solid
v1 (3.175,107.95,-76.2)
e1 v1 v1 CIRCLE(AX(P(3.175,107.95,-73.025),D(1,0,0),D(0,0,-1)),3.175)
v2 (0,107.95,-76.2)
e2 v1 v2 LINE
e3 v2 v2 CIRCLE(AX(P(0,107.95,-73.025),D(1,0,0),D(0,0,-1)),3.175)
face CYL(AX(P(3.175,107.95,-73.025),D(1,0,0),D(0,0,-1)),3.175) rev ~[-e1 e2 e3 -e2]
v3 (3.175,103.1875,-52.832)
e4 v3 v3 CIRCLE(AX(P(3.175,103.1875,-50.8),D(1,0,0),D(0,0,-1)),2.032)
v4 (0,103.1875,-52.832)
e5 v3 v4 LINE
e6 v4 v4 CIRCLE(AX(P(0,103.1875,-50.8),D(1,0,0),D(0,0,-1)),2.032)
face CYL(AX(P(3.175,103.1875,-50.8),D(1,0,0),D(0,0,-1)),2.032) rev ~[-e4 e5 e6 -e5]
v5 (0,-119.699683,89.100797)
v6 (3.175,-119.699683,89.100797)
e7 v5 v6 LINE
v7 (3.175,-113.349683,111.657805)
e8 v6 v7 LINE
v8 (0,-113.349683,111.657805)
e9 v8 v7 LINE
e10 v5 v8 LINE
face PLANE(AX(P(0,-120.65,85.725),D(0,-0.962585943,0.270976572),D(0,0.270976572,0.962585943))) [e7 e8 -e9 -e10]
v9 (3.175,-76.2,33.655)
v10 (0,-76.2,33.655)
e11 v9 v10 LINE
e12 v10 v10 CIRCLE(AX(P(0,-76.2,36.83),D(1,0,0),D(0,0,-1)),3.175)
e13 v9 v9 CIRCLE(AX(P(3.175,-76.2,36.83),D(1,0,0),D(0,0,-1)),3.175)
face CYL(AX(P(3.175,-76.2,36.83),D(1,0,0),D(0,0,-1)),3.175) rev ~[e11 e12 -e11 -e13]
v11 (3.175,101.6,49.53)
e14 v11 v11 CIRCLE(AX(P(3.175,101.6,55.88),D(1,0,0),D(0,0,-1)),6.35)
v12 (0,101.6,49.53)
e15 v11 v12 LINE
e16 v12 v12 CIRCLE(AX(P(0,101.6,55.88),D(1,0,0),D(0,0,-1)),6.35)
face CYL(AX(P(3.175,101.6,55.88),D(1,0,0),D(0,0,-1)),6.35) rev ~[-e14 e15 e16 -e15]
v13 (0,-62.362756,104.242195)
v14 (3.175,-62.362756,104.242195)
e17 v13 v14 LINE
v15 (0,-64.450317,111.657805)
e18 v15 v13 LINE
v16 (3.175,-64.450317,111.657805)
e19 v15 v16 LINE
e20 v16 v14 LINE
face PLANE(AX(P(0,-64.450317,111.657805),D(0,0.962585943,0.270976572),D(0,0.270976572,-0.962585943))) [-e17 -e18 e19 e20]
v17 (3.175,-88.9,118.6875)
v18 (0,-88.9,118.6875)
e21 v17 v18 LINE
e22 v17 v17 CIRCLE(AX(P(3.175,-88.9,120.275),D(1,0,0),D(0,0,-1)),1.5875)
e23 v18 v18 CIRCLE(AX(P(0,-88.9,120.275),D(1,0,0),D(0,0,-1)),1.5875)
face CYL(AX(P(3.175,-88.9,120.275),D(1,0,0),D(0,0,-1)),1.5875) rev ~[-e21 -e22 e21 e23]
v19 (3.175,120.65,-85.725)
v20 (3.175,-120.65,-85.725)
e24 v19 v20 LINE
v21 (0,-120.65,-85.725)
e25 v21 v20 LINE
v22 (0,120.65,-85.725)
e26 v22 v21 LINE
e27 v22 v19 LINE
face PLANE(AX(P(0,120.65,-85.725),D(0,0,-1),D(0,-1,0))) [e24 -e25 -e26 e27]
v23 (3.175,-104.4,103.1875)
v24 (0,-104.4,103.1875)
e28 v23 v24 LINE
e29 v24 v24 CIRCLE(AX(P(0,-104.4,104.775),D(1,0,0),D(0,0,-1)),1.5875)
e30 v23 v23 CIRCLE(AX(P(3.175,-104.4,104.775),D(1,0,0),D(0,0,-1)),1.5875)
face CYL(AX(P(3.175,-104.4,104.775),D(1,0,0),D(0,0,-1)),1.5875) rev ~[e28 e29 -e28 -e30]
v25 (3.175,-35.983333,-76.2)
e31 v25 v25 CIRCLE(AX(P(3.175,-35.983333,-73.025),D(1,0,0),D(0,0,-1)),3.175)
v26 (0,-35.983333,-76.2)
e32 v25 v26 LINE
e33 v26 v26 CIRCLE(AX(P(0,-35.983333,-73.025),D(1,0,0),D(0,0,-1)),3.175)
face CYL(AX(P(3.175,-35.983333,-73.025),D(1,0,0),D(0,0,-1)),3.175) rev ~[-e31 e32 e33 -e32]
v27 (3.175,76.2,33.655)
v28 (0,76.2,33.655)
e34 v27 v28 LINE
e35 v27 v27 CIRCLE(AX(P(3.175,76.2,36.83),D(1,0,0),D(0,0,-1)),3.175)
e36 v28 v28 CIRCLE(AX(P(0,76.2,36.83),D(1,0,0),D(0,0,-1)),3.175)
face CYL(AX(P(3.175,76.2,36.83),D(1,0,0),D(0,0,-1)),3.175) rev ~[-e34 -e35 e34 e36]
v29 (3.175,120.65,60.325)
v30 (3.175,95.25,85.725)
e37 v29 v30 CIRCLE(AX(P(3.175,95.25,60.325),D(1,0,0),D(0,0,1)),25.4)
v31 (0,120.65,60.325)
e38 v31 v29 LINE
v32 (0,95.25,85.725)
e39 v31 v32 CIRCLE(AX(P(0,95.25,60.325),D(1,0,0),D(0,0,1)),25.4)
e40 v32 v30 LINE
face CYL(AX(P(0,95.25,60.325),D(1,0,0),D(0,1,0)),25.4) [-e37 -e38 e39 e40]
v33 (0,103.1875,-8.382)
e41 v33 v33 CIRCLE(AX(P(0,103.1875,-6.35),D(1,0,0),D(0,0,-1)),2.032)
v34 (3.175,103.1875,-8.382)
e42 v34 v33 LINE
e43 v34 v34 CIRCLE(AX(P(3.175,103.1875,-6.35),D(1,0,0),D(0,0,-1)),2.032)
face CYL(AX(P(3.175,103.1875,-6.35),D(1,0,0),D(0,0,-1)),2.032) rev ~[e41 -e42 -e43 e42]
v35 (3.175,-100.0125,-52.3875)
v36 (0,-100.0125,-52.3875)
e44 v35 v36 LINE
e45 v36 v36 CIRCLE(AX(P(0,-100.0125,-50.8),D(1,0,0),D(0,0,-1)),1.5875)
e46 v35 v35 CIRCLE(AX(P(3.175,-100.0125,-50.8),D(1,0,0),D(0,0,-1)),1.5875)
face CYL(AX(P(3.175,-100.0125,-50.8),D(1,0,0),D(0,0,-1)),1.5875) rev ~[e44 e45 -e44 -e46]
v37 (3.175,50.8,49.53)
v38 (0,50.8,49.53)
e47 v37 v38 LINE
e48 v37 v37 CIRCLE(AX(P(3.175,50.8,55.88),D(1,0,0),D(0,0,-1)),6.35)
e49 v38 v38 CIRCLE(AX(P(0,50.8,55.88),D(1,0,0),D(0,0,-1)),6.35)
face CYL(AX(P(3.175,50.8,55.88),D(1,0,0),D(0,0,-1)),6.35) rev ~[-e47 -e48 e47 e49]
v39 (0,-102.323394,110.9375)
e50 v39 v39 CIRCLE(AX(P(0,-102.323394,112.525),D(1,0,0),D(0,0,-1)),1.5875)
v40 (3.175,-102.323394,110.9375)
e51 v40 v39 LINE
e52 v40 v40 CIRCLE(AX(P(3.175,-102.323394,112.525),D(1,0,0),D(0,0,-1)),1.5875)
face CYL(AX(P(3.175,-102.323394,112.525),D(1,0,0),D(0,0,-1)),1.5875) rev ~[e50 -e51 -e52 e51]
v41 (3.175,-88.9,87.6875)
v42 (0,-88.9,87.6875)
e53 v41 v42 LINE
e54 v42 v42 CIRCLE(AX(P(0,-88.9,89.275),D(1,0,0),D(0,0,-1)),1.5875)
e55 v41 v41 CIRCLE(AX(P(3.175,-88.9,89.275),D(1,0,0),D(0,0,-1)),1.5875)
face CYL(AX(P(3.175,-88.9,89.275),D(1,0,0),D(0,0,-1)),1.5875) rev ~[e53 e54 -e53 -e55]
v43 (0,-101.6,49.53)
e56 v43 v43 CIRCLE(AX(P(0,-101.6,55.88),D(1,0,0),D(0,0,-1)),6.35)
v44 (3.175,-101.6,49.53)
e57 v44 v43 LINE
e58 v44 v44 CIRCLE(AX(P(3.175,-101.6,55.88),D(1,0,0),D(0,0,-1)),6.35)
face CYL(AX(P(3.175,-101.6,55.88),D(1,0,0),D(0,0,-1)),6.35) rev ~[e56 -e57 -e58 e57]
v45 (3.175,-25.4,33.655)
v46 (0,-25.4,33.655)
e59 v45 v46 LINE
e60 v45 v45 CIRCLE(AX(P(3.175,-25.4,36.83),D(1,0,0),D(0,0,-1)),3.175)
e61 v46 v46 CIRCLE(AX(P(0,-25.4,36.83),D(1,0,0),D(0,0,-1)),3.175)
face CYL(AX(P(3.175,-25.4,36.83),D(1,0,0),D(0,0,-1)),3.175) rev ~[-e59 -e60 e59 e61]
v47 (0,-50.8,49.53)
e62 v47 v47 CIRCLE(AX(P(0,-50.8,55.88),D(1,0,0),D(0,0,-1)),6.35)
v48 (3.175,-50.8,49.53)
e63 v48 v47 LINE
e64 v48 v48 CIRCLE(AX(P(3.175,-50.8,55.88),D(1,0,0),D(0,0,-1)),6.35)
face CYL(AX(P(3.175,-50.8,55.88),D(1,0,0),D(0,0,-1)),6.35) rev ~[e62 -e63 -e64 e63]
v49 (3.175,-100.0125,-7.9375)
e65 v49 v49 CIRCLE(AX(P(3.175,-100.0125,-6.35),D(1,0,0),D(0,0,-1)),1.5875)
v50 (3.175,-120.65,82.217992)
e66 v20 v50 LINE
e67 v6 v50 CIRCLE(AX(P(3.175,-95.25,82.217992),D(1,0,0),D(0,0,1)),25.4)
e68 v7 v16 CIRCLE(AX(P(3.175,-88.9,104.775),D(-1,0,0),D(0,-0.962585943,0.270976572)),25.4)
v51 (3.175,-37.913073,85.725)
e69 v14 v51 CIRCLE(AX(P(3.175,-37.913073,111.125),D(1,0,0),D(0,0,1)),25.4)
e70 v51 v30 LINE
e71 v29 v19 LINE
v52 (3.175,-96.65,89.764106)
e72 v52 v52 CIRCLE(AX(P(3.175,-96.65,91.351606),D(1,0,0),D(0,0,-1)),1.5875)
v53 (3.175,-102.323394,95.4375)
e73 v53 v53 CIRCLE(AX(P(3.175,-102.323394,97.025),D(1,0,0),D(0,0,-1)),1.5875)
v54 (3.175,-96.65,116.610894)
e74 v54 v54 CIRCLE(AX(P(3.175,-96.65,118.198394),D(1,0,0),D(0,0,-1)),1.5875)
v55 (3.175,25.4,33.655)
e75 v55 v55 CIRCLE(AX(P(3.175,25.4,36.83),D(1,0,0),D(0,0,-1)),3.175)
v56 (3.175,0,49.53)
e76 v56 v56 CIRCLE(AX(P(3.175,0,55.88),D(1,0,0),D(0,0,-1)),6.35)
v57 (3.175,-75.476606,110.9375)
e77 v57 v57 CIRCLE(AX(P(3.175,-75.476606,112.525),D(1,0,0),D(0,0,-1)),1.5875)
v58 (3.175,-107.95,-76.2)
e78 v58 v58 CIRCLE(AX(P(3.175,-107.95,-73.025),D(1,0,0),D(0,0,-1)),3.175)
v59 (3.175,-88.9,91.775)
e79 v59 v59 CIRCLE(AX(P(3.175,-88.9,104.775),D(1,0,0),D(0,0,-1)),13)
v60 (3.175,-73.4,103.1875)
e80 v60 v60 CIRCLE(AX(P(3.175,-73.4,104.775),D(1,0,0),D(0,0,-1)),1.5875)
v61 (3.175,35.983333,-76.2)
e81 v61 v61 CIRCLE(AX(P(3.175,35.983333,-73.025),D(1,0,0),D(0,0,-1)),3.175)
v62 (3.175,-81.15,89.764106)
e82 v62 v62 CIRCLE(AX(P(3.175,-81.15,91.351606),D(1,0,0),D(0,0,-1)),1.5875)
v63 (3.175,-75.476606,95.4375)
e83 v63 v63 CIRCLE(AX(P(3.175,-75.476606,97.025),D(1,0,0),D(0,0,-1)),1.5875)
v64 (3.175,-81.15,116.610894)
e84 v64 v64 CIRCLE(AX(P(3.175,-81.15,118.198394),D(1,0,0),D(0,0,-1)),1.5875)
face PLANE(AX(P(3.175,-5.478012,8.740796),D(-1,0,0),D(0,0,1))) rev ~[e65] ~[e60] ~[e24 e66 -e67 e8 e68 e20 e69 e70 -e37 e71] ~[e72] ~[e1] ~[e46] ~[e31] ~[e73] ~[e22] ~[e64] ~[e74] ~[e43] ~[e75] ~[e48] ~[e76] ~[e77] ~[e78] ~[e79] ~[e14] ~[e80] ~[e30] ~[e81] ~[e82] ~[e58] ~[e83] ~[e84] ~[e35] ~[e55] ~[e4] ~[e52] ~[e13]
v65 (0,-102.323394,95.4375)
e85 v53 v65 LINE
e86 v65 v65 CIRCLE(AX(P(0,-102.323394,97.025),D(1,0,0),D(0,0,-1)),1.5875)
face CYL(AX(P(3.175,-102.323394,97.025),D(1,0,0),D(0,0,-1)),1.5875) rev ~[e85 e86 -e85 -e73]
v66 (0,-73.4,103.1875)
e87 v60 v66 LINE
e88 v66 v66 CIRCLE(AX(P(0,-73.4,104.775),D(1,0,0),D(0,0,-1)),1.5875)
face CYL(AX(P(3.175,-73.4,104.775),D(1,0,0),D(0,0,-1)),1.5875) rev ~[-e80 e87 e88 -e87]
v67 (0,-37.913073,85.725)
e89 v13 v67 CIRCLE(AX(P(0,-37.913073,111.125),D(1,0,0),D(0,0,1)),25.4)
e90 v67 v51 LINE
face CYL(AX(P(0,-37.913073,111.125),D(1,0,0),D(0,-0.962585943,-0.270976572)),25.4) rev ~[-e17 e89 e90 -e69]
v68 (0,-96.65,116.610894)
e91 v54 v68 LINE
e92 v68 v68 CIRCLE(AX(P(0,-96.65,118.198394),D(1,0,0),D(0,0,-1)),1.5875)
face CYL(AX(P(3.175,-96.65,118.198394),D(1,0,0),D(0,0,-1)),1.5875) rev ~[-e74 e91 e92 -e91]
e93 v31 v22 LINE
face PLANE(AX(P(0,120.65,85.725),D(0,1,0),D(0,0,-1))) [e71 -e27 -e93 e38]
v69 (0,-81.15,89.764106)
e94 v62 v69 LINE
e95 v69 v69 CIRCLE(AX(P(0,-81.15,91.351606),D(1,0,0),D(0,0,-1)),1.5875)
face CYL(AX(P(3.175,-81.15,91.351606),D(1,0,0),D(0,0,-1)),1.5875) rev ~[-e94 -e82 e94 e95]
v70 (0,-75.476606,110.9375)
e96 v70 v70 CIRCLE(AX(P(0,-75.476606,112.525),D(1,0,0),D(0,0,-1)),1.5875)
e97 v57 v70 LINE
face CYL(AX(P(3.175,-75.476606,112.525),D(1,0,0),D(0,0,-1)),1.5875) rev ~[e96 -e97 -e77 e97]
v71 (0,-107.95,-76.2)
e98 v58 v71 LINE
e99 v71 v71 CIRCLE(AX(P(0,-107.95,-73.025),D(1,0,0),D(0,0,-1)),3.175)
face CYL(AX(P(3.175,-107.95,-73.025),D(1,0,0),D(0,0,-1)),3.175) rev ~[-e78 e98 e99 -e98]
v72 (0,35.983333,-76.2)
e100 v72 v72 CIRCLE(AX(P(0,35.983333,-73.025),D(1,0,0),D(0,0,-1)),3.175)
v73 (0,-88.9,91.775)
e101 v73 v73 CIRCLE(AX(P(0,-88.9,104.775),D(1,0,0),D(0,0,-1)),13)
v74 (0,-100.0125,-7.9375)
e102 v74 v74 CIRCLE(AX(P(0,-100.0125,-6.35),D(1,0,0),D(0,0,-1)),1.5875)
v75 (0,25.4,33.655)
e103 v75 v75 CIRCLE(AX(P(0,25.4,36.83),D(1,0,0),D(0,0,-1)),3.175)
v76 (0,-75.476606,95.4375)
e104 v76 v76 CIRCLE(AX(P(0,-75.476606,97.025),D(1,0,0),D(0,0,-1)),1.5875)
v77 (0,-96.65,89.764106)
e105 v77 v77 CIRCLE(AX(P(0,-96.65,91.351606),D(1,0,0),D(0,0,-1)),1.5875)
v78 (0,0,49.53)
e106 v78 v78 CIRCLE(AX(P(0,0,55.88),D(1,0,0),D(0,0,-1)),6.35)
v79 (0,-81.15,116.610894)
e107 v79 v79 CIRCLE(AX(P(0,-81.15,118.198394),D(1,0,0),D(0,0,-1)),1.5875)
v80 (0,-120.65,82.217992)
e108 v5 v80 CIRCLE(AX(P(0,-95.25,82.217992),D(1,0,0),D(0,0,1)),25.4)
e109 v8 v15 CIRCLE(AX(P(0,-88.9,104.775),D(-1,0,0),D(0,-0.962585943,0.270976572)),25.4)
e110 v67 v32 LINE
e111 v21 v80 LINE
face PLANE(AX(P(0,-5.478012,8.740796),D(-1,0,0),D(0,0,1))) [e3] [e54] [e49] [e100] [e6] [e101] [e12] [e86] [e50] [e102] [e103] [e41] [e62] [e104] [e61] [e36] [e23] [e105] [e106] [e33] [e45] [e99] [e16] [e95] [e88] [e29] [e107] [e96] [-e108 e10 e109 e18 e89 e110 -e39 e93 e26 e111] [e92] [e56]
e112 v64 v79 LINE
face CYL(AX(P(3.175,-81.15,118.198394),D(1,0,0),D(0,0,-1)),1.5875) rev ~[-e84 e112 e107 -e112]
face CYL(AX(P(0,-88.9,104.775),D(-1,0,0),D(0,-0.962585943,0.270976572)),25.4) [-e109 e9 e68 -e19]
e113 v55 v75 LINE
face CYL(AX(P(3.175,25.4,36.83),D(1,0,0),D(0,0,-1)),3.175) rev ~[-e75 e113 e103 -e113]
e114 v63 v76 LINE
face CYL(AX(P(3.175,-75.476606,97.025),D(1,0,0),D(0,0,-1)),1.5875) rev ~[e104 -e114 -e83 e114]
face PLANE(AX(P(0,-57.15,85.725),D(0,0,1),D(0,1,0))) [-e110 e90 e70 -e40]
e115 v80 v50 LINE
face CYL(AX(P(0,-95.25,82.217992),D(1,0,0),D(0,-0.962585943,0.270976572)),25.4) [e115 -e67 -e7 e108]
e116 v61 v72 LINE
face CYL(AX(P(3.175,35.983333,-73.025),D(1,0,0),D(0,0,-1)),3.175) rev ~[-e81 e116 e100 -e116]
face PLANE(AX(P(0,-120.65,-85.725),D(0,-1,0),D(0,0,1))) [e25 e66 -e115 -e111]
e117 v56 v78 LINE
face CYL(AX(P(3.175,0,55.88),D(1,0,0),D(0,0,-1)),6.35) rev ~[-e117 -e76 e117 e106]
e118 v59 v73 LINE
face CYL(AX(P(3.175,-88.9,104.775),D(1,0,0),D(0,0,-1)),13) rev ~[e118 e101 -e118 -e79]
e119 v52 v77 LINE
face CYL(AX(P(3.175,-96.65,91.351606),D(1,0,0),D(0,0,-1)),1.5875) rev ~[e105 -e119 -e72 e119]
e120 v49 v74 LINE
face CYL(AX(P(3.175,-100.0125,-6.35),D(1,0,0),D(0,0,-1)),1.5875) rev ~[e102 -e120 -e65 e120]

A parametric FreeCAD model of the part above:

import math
import FreeCAD as App
import Part
import Sketcher
Q = App.Units.Quantity


def edges_at(feature, points):
    """Names of the edges that pass closest to the given points."""
    edges = feature.Shape.Edges
    near = lambda p: min(range(len(edges)), key=lambda i: edges[i].distToShape(Part.Vertex(*p))[0])
    return sorted({f"Edge{near(p) + 1}" for p in points})

doc = App.newDocument("Part")
body = doc.addObject("PartDesign::Body", "Body")

sketch1 = body.newObject("Sketcher::SketchObject", "Sketch")
sketch1.AttachmentSupport = (doc.getObject("YZ_Plane"), [""])
sketch1.MapMode = "FlatFace"
sketch1.addGeometry([
    Part.LineSegment(App.Vector(-113, 112, 0), App.Vector(-121, 86, 0)),
    Part.LineSegment(App.Vector(-121, 86, 0), App.Vector(-121, -86, 0)),
    Part.LineSegment(App.Vector(-121, -86, 0), App.Vector(121, -86, 0)),
    Part.LineSegment(App.Vector(121, -86, 0), App.Vector(121, 86, 0)),
    Part.LineSegment(App.Vector(121, 86, 0), App.Vector(-57, 86, 0)),
    Part.LineSegment(App.Vector(-57, 86, 0), App.Vector(-64, 112, 0)),
    Part.ArcOfCircle(Part.Circle(App.Vector(-89, 105, 0), App.Vector(0, 0, 1), 25), math.radians(16), math.radians(164)),
], False)
sketch1.addConstraint([
    Sketcher.Constraint("Coincident", 0, 2, 1, 1),
    Sketcher.Constraint("Coincident", 1, 2, 2, 1),
    Sketcher.Constraint("Coincident", 2, 2, 3, 1),
    Sketcher.Constraint("Coincident", 3, 2, 4, 1),
    Sketcher.Constraint("Coincident", 4, 2, 5, 1),
    Sketcher.Constraint("Tangent", 5, 2, 6, 1),
    Sketcher.Constraint("Tangent", 6, 2, 0, 1),
    Sketcher.Constraint("Vertical", 1),
    Sketcher.Constraint("Horizontal", 2),
    Sketcher.Constraint("Vertical", 3),
    Sketcher.Constraint("Horizontal", 4),
    Sketcher.Constraint("Symmetric", 0, 2, 2, 2, -1, 1),
    Sketcher.Constraint("Horizontal", 0, 2, 3, 2),
    Sketcher.Constraint("Horizontal", 5, 2, 6, 2),
    Sketcher.Constraint("Radius", 6, Q("1 in")),
    Sketcher.Constraint("DistanceX", 4, 2, 4, 1, Q("7 in")),
    Sketcher.Constraint("DistanceX", 2, 1, 2, 2, Q("9.5 in")),
    Sketcher.Constraint("DistanceY", 1, 2, 1, 1, Q("6.75 in")),
    Sketcher.Constraint("DistanceY", 1, 2, 6, 3, Q("7.5 in")),
])
pad1 = body.newObject("PartDesign::Pad", "Pad")
pad1.Profile = sketch1
pad1.Length = Q("0.125 in")

sketch2 = body.newObject("Sketcher::SketchObject", "Sketch001")
sketch2.AttachmentSupport = (doc.getObject("YZ_Plane"), [""])
sketch2.MapMode = "FlatFace"
sketch2.AttachmentOffset = App.Placement(App.Vector(0, 0, 0.125 * 25.4), App.Rotation())
sketch2.addGeometry([
    Part.Circle(App.Vector(-108, -73, 0), App.Vector(0, 0, 1), 3.2),
    Part.Circle(App.Vector(-36, -73, 0), App.Vector(0, 0, 1), 3.2),
    Part.Circle(App.Vector(36, -73, 0), App.Vector(0, 0, 1), 3.2),
    Part.Circle(App.Vector(108, -73, 0), App.Vector(0, 0, 1), 3.2),
    Part.Circle(App.Vector(-101.6, 55.9, 0), App.Vector(0, 0, 1), 6.3),
    Part.Circle(App.Vector(-50.8, 55.9, 0), App.Vector(0, 0, 1), 6.3),
    Part.Circle(App.Vector(0, 55.9, 0), App.Vector(0, 0, 1), 6.3),
    Part.Circle(App.Vector(50.8, 55.9, 0), App.Vector(0, 0, 1), 6.3),
    Part.Circle(App.Vector(101.6, 55.9, 0), App.Vector(0, 0, 1), 6.3),
    Part.Circle(App.Vector(-76.2, 36.8, 0), App.Vector(0, 0, 1), 3.2),
    Part.Circle(App.Vector(-25.4, 36.8, 0), App.Vector(0, 0, 1), 3.2),
    Part.Circle(App.Vector(25.4, 36.8, 0), App.Vector(0, 0, 1), 3.2),
    Part.Circle(App.Vector(76.2, 36.8, 0), App.Vector(0, 0, 1), 3.2),
    Part.Circle(App.Vector(-88.9, 104.8, 0), App.Vector(0, 0, 1), 13),
    Part.Circle(App.Vector(-73.4, 104.8, 0), App.Vector(0, 0, 1), 1.6),
    Part.Circle(App.Vector(-75.5, 97, 0), App.Vector(0, 0, 1), 1.6),
    Part.Circle(App.Vector(-81.2, 91.4, 0), App.Vector(0, 0, 1), 1.6),
    Part.Circle(App.Vector(-88.9, 89.3, 0), App.Vector(0, 0, 1), 1.6),
    Part.Circle(App.Vector(-96.7, 91.4, 0), App.Vector(0, 0, 1), 1.6),
    Part.Circle(App.Vector(-102.3, 97, 0), App.Vector(0, 0, 1), 1.6),
    Part.Circle(App.Vector(-104.4, 104.8, 0), App.Vector(0, 0, 1), 1.6),
    Part.Circle(App.Vector(-102.3, 112.5, 0), App.Vector(0, 0, 1), 1.6),
    Part.Circle(App.Vector(-96.7, 118.2, 0), App.Vector(0, 0, 1), 1.6),
    Part.Circle(App.Vector(-88.9, 120.3, 0), App.Vector(0, 0, 1), 1.6),
    Part.Circle(App.Vector(-81.2, 118.2, 0), App.Vector(0, 0, 1), 1.6),
    Part.Circle(App.Vector(-75.5, 112.5, 0), App.Vector(0, 0, 1), 1.6),
    Part.Circle(App.Vector(103.2, -6.3, 0), App.Vector(0, 0, 1), 2),
    Part.Circle(App.Vector(103.2, -50.8, 0), App.Vector(0, 0, 1), 2),
    Part.Circle(App.Vector(-100, -50.8, 0), App.Vector(0, 0, 1), 1.6),
    Part.Circle(App.Vector(-100, -6.3, 0), App.Vector(0, 0, 1), 1.6),
], False)
sketch2.addConstraint([
    Sketcher.Constraint("Equal", 0, 1),
    Sketcher.Constraint("Equal", 1, 2),
    Sketcher.Constraint("Equal", 2, 3),
    Sketcher.Constraint("Equal", 4, 5),
    Sketcher.Constraint("Equal", 5, 6),
    Sketcher.Constraint("Equal", 6, 7),
    Sketcher.Constraint("Equal", 7, 8),
    Sketcher.Constraint("Equal", 3, 9),
    Sketcher.Constraint("Equal", 9, 10),
    Sketcher.Constraint("Equal", 10, 11),
    Sketcher.Constraint("Equal", 11, 12),
    Sketcher.Constraint("Equal", 14, 15),
    Sketcher.Constraint("Equal", 15, 16),
    Sketcher.Constraint("Equal", 16, 17),
    Sketcher.Constraint("Equal", 17, 18),
    Sketcher.Constraint("Equal", 18, 19),
    Sketcher.Constraint("Equal", 19, 20),
    Sketcher.Constraint("Equal", 20, 21),
    Sketcher.Constraint("Equal", 21, 22),
    Sketcher.Constraint("Equal", 22, 23),
    Sketcher.Constraint("Equal", 23, 24),
    Sketcher.Constraint("Equal", 24, 25),
    Sketcher.Constraint("Equal", 26, 27),
    Sketcher.Constraint("Equal", 25, 28),
    Sketcher.Constraint("Equal", 28, 29),
    Sketcher.Constraint("Symmetric", 1, 3, 2, 3, -2),
    Sketcher.Constraint("Symmetric", 0, 3, 3, 3, -2),
    Sketcher.Constraint("Symmetric", 5, 3, 7, 3, -2),
    Sketcher.Constraint("Symmetric", 4, 3, 8, 3, -2),
    Sketcher.Constraint("Symmetric", 10, 3, 11, 3, -2),
    Sketcher.Constraint("Symmetric", 9, 3, 12, 3, -2),
    Sketcher.Constraint("PointOnObject", 6, 3, -2),
    Sketcher.Constraint("Horizontal", 0, 3, 1, 3),
    Sketcher.Constraint("Horizontal", 4, 3, 5, 3),
    Sketcher.Constraint("Horizontal", 5, 3, 6, 3),
    Sketcher.Constraint("Horizontal", 9, 3, 10, 3),
    Sketcher.Constraint("Horizontal", 13, 3, 14, 3),
    Sketcher.Constraint("Horizontal", 16, 3, 18, 3),
    Sketcher.Constraint("Horizontal", 15, 3, 19, 3),
    Sketcher.Constraint("Horizontal", 14, 3, 20, 3),
    Sketcher.Constraint("Horizontal", 22, 3, 24, 3),
    Sketcher.Constraint("Horizontal", 21, 3, 25, 3),
    Sketcher.Constraint("Horizontal", 27, 3, 28, 3),
    Sketcher.Constraint("Horizontal", 26, 3, 29, 3),
    Sketcher.Constraint("Vertical", 13, 3, 17, 3),
    Sketcher.Constraint("Vertical", 19, 3, 21, 3),
    Sketcher.Constraint("Vertical", 18, 3, 22, 3),
    Sketcher.Constraint("Vertical", 17, 3, 23, 3),
    Sketcher.Constraint("Vertical", 16, 3, 24, 3),
    Sketcher.Constraint("Vertical", 15, 3, 25, 3),
    Sketcher.Constraint("Vertical", 26, 3, 27, 3),
    Sketcher.Constraint("Vertical", 28, 3, 29, 3),
    Sketcher.Constraint("Diameter", 4, Q("0.5 in")),
    Sketcher.Constraint("Diameter", 0, Q("0.25 in")),
    Sketcher.Constraint("Diameter", 26, Q("0.16 in")),
    Sketcher.Constraint("Diameter", 14, Q("0.125 in")),
    Sketcher.Constraint("DistanceX", 4, 3, -1, 1, Q("4 in")),
    Sketcher.Constraint("DistanceX", 5, 3, -1, 1, Q("2 in")),
    Sketcher.Constraint("DistanceX", 9, 3, -1, 1, Q("3 in")),
    Sketcher.Constraint("DistanceX", 10, 3, -1, 1, Q("1 in")),
    Sketcher.Constraint("DistanceY", 27, 3, -1, 1, Q("2 in")),
    Sketcher.Constraint("DistanceY", -1, 1, 4, 3, Q("2.2 in")),
    Sketcher.Constraint("DistanceX", 13, 3, -1, 1, Q("3.5 in")),
    Sketcher.Constraint("DistanceX", 0, 3, 3, 3, Q("8.5 in")),
    Sketcher.Constraint("DistanceY", 26, 3, 12, 3, Q("1.7 in")),
    Sketcher.Constraint("Diameter", 13, 26.0),
    Sketcher.Constraint("DistanceY", -1, 1, 9, 3, Q("1.45 in")),
    Sketcher.Constraint("DistanceY", 0, 3, -1, 1, Q("2.875 in")),
    Sketcher.Constraint("DistanceY", -1, 1, 13, 3, Q("4.125 in")),
    Sketcher.Constraint("DistanceX", -1, 1, 26, 3, Q("4.0625 in")),
    Sketcher.Constraint("DistanceX", 28, 3, -1, 1, Q("3.9375 in")),
    Sketcher.Constraint("DistanceX", 14, 3, -1, 1, 73.4),
    Sketcher.Constraint("DistanceY", -1, 1, 15, 3, 97.025),
    Sketcher.Constraint("DistanceX", 16, 3, -1, 1, 81.15),
    Sketcher.Constraint("DistanceY", -1, 1, 17, 3, 89.275),
    Sketcher.Constraint("DistanceX", 18, 3, -1, 1, 96.65),
    Sketcher.Constraint("DistanceX", 20, 3, -1, 1, 104.4),
    Sketcher.Constraint("DistanceY", -1, 1, 21, 3, 112.525),
    Sketcher.Constraint("DistanceY", -1, 1, 23, 3, 120.275),
    Sketcher.Constraint("DistanceX", 1, 3, -1, 1, 35.983333),
    Sketcher.Constraint("DistanceX", 15, 3, -1, 1, 75.476606),
    Sketcher.Constraint("DistanceY", -1, 1, 16, 3, 91.351606),
    Sketcher.Constraint("DistanceX", 19, 3, -1, 1, 102.323394),
    Sketcher.Constraint("DistanceY", -1, 1, 22, 3, 118.198394),
])
pocket1 = body.newObject("PartDesign::Pocket", "Pocket")
pocket1.Profile = sketch2
pocket1.Type = "ThroughAll"
doc.recompute()

fillet = body.newObject("PartDesign::Fillet", "Fillet")
fillet.Base = (pocket1, edges_at(pocket1, [(1.587, -120.65, 85.725), (1.587, -57.15, 85.725), (1.587, 120.65, 85.725)]))
fillet.Radius = Q("1 in")

doc.recompute()
